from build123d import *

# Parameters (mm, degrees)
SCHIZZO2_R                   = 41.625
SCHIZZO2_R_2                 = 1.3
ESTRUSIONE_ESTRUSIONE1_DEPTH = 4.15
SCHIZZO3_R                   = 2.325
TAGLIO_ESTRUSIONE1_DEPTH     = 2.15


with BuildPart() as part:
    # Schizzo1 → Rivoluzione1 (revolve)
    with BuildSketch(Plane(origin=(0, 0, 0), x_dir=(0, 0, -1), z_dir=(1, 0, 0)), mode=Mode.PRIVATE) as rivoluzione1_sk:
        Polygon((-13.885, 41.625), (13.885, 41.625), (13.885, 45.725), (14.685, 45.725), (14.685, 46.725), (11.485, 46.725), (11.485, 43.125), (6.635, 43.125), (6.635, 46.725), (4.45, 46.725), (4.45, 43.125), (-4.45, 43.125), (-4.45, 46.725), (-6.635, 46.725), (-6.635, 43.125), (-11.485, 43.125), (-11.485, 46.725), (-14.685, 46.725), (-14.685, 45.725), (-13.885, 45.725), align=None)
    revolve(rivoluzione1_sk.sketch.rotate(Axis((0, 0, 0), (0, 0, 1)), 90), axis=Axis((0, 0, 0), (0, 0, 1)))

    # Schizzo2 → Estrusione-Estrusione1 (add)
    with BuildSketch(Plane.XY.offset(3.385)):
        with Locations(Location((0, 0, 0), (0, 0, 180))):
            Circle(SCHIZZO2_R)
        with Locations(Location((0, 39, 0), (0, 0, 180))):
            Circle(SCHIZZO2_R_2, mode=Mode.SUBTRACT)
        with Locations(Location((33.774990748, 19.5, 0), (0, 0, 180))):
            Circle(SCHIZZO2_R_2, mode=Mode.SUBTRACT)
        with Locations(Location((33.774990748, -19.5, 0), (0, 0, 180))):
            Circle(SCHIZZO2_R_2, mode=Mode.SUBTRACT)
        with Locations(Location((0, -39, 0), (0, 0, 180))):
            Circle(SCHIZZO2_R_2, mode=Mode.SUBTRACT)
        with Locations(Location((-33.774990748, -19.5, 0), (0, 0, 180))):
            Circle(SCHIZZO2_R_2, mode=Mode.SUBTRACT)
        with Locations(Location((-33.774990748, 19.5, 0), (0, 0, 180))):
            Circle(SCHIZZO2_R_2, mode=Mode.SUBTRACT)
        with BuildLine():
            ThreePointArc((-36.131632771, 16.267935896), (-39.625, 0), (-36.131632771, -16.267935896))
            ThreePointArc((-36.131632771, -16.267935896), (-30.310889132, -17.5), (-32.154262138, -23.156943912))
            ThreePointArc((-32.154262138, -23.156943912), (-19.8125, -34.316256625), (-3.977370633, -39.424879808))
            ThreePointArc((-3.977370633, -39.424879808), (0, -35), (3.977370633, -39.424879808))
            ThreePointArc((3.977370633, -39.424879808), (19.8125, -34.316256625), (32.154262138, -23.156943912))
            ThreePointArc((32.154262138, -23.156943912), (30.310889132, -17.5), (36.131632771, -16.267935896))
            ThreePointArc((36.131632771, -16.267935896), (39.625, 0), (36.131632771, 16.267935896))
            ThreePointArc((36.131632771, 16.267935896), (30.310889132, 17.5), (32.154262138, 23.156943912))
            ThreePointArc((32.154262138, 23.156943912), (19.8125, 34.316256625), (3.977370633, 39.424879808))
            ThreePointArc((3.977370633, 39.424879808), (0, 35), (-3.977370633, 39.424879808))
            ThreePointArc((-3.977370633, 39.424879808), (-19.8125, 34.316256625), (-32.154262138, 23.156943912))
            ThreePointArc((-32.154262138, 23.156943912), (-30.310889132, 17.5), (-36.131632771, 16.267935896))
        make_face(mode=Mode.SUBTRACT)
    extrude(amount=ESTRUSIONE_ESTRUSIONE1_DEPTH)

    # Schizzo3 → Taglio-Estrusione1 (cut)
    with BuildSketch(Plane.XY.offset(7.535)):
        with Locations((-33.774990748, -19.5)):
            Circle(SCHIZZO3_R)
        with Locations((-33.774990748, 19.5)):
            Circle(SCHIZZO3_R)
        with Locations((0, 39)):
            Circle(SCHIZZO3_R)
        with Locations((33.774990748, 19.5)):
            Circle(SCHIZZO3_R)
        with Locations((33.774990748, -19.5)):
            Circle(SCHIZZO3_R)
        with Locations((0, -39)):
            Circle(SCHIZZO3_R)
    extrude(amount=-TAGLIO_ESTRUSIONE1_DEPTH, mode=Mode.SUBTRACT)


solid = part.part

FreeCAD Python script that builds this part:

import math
import FreeCAD as App
import Part
import Sketcher
Q = App.Units.Quantity

doc = App.newDocument("Part")
body = doc.addObject("PartDesign::Body", "Body")

sketch1 = body.newObject("Sketcher::SketchObject", "Sketch")
sketch1.AttachmentSupport = (doc.getObject("YZ_Plane"), [""])
sketch1.MapMode = "FlatFace"
sketch1.addGeometry([
    Part.LineSegment(App.Vector(41.6, 13.9, 0), App.Vector(41.6, -13.9, 0)),
    Part.LineSegment(App.Vector(41.6, -13.9, 0), App.Vector(45.7, -13.9, 0)),
    Part.LineSegment(App.Vector(45.7, -13.9, 0), App.Vector(45.7, -14.7, 0)),
    Part.LineSegment(App.Vector(45.7, -14.7, 0), App.Vector(46.7, -14.7, 0)),
    Part.LineSegment(App.Vector(46.7, -14.7, 0), App.Vector(46.7, -11.5, 0)),
    Part.LineSegment(App.Vector(46.7, -11.5, 0), App.Vector(43.1, -11.5, 0)),
    Part.LineSegment(App.Vector(43.1, -11.5, 0), App.Vector(43.1, -6.6, 0)),
    Part.LineSegment(App.Vector(43.1, -6.6, 0), App.Vector(46.7, -6.6, 0)),
    Part.LineSegment(App.Vector(46.7, -6.6, 0), App.Vector(46.7, -4.5, 0)),
    Part.LineSegment(App.Vector(46.7, -4.5, 0), App.Vector(43.1, -4.5, 0)),
    Part.LineSegment(App.Vector(43.1, -4.5, 0), App.Vector(43.1, 4.5, 0)),
    Part.LineSegment(App.Vector(43.1, 4.5, 0), App.Vector(46.7, 4.5, 0)),
    Part.LineSegment(App.Vector(46.7, 4.5, 0), App.Vector(46.7, 6.6, 0)),
    Part.LineSegment(App.Vector(46.7, 6.6, 0), App.Vector(43.1, 6.6, 0)),
    Part.LineSegment(App.Vector(43.1, 6.6, 0), App.Vector(43.1, 11.5, 0)),
    Part.LineSegment(App.Vector(43.1, 11.5, 0), App.Vector(46.7, 11.5, 0)),
    Part.LineSegment(App.Vector(46.7, 11.5, 0), App.Vector(46.7, 14.7, 0)),
    Part.LineSegment(App.Vector(46.7, 14.7, 0), App.Vector(45.7, 14.7, 0)),
    Part.LineSegment(App.Vector(45.7, 14.7, 0), App.Vector(45.7, 13.9, 0)),
    Part.LineSegment(App.Vector(45.7, 13.9, 0), App.Vector(41.6, 13.9, 0)),
], False)
sketch1.addConstraint([
    Sketcher.Constraint("Coincident", 0, 2, 1, 1),
    Sketcher.Constraint("Coincident", 1, 2, 2, 1),
    Sketcher.Constraint("Coincident", 2, 2, 3, 1),
    Sketcher.Constraint("Coincident", 3, 2, 4, 1),
    Sketcher.Constraint("Coincident", 4, 2, 5, 1),
    Sketcher.Constraint("Coincident", 5, 2, 6, 1),
    Sketcher.Constraint("Coincident", 6, 2, 7, 1),
    Sketcher.Constraint("Coincident", 7, 2, 8, 1),
    Sketcher.Constraint("Coincident", 8, 2, 9, 1),
    Sketcher.Constraint("Coincident", 9, 2, 10, 1),
    Sketcher.Constraint("Coincident", 10, 2, 11, 1),
    Sketcher.Constraint("Coincident", 11, 2, 12, 1),
    Sketcher.Constraint("Coincident", 12, 2, 13, 1),
    Sketcher.Constraint("Coincident", 13, 2, 14, 1),
    Sketcher.Constraint("Coincident", 14, 2, 15, 1),
    Sketcher.Constraint("Coincident", 15, 2, 16, 1),
    Sketcher.Constraint("Coincident", 16, 2, 17, 1),
    Sketcher.Constraint("Coincident", 17, 2, 18, 1),
    Sketcher.Constraint("Coincident", 18, 2, 19, 1),
    Sketcher.Constraint("Coincident", 19, 2, 0, 1),
    Sketcher.Constraint("Vertical", 0),
    Sketcher.Constraint("Horizontal", 1),
    Sketcher.Constraint("Vertical", 2),
    Sketcher.Constraint("Horizontal", 3),
    Sketcher.Constraint("Vertical", 4),
    Sketcher.Constraint("Horizontal", 5),
    Sketcher.Constraint("Vertical", 6),
    Sketcher.Constraint("Horizontal", 7),
    Sketcher.Constraint("Vertical", 8),
    Sketcher.Constraint("Horizontal", 9),
    Sketcher.Constraint("Vertical", 10),
    Sketcher.Constraint("Horizontal", 11),
    Sketcher.Constraint("Vertical", 12),
    Sketcher.Constraint("Horizontal", 13),
    Sketcher.Constraint("Vertical", 14),
    Sketcher.Constraint("Horizontal", 15),
    Sketcher.Constraint("Vertical", 16),
    Sketcher.Constraint("Horizontal", 17),
    Sketcher.Constraint("Vertical", 18),
    Sketcher.Constraint("Horizontal", 19),
    Sketcher.Constraint("Symmetric", 8, 2, 11, 2, -1),
    Sketcher.Constraint("Symmetric", 6, 2, 13, 2, -1),
    Sketcher.Constraint("Symmetric", 4, 2, 15, 2, -1),
    Sketcher.Constraint("Symmetric", 2, 2, 17, 2, -1),
    Sketcher.Constraint("Vertical", 4, 2, 7, 2),
    Sketcher.Constraint("Vertical", 6, 2, 9, 2),
    Sketcher.Constraint("Equal", 2, 18),
    Sketcher.Constraint("DistanceX", 3, 1, 3, 2, Q("1 mm")),
    Sketcher.Constraint("DistanceX", 1, 1, 1, 2, Q("4.1 mm")),
    Sketcher.Constraint("DistanceX", 5, 2, 5, 1, Q("3.6 mm")),
    Sketcher.Constraint("DistanceY", 2, 2, 2, 1, Q("0.8 mm")),
    Sketcher.Constraint("DistanceY", 4, 1, 4, 2, Q("3.2 mm")),
    Sketcher.Constraint("DistanceY", 10, 1, 10, 2, Q("8.9 mm")),
    Sketcher.Constraint("DistanceY", 0, 2, 0, 1, Q("27.77 mm")),
    Sketcher.Constraint("DistanceY", 6, 1, 6, 2, Q("4.85 mm")),
    Sketcher.Constraint("DistanceX", -1, 1, 0, 2, Q("41.625 mm")),
])
revolution = body.newObject("PartDesign::Revolution", "Revolution")
revolution.Profile = sketch1
revolution.ReferenceAxis = (sketch1, ["V_Axis"])
revolution.Angle = 360

sketch2 = body.newObject("Sketcher::SketchObject", "Sketch001")
sketch2.AttachmentSupport = (doc.getObject("XY_Plane"), [""])
sketch2.MapMode = "FlatFace"
sketch2.AttachmentOffset = App.Placement(App.Vector(0, 0, 3.385), App.Rotation())
sketch2.addGeometry([
    Part.Circle(App.Vector(0, 0, 0), App.Vector(0, 0, 1), 41.6),
    Part.Circle(App.Vector(33.8, 19.5, 0), App.Vector(0, 0, 1), 1.3),
    Part.Circle(App.Vector(0, 39, 0), App.Vector(0, 0, 1), 1.3),
    Part.Circle(App.Vector(-33.8, 19.5, 0), App.Vector(0, 0, 1), 1.3),
    Part.Circle(App.Vector(33.8, -19.5, 0), App.Vector(0, 0, 1), 1.3),
    Part.ArcOfCircle(Part.Circle(App.Vector(0, 0, 0), App.Vector(0, 0, 1), 39.6), math.radians(156), math.radians(204)),
    Part.ArcOfCircle(Part.Circle(App.Vector(-33.8, 19.5, 0), App.Vector(0, 0, 1), 4), math.radians(-126), math.radians(66)),
    Part.ArcOfCircle(Part.Circle(App.Vector(0, 0, 0), App.Vector(0, 0, 1), 39.6), math.radians(96), math.radians(144)),
    Part.ArcOfCircle(Part.Circle(App.Vector(0, 39, 0), App.Vector(0, 0, 1), 4), math.radians(174), math.radians(366)),
    Part.ArcOfCircle(Part.Circle(App.Vector(0, 0, 0), App.Vector(0, 0, 1), 39.6), math.radians(36), math.radians(84)),
    Part.ArcOfCircle(Part.Circle(App.Vector(33.8, 19.5, 0), App.Vector(0, 0, 1), 4), math.radians(114), math.radians(306)),
    Part.ArcOfCircle(Part.Circle(App.Vector(0, 0, 0), App.Vector(0, 0, 1), 39.6), math.radians(-24), math.radians(24)),
    Part.ArcOfCircle(Part.Circle(App.Vector(33.8, -19.5, 0), App.Vector(0, 0, 1), 4), math.radians(54), math.radians(246)),
    Part.ArcOfCircle(Part.Circle(App.Vector(0, 0, 0), App.Vector(0, 0, 1), 39.6), math.radians(-84), math.radians(-36)),
    Part.ArcOfCircle(Part.Circle(App.Vector(0, -39, 0), App.Vector(0, 0, 1), 4), math.radians(-6), math.radians(186)),
    Part.ArcOfCircle(Part.Circle(App.Vector(0, 0, 0), App.Vector(0, 0, 1), 39.6), math.radians(-144), math.radians(-96)),
    Part.ArcOfCircle(Part.Circle(App.Vector(-33.8, -19.5, 0), App.Vector(0, 0, 1), 4), math.radians(-66), math.radians(126)),
    Part.Circle(App.Vector(-33.8, -19.5, 0), App.Vector(0, 0, 1), 1.3),
    Part.Circle(App.Vector(0, -39, 0), App.Vector(0, 0, 1), 1.3),
], False)
sketch2.addConstraint([
    Sketcher.Constraint("Coincident", 5, 1, 6, 1),
    Sketcher.Constraint("Coincident", 6, 2, 7, 2),
    Sketcher.Constraint("Coincident", 7, 1, 8, 1),
    Sketcher.Constraint("Coincident", 8, 2, 9, 2),
    Sketcher.Constraint("Coincident", 9, 1, 10, 1),
    Sketcher.Constraint("Coincident", 10, 2, 11, 2),
    Sketcher.Constraint("Coincident", 11, 1, 12, 1),
    Sketcher.Constraint("Coincident", 12, 2, 13, 2),
    Sketcher.Constraint("Coincident", 13, 1, 14, 1),
    Sketcher.Constraint("Coincident", 14, 2, 15, 2),
    Sketcher.Constraint("Coincident", 15, 1, 16, 1),
    Sketcher.Constraint("Coincident", 16, 2, 5, 2),
    Sketcher.Constraint("Coincident", 0, 3, -1, 1),
    Sketcher.Constraint("Coincident", 5, 3, -1, 1),
    Sketcher.Constraint("Coincident", 7, 3, -1, 1),
    Sketcher.Constraint("Coincident", 9, 3, -1, 1),
    Sketcher.Constraint("Coincident", 11, 3, -1, 1),
    Sketcher.Constraint("Coincident", 13, 3, -1, 1),
    Sketcher.Constraint("Coincident", 15, 3, -1, 1),
    Sketcher.Constraint("Coincident", 6, 3, 3, 3),
    Sketcher.Constraint("Coincident", 8, 3, 2, 3),
    Sketcher.Constraint("Coincident", 10, 3, 1, 3),
    Sketcher.Constraint("Coincident", 12, 3, 4, 3),
    Sketcher.Constraint("Coincident", 17, 3, 16, 3),
    Sketcher.Constraint("Coincident", 18, 3, 14, 3),
    Sketcher.Constraint("Equal", 1, 2),
    Sketcher.Constraint("Equal", 2, 3),
    Sketcher.Constraint("Equal", 3, 4),
    Sketcher.Constraint("Equal", 5, 7),
    Sketcher.Constraint("Equal", 6, 8),
    Sketcher.Constraint("Equal", 7, 9),
    Sketcher.Constraint("Equal", 8, 10),
    Sketcher.Constraint("Equal", 9, 11),
    Sketcher.Constraint("Equal", 10, 12),
    Sketcher.Constraint("Equal", 11, 13),
    Sketcher.Constraint("Equal", 12, 14),
    Sketcher.Constraint("Equal", 13, 15),
    Sketcher.Constraint("Equal", 14, 16),
    Sketcher.Constraint("Equal", 4, 17),
    Sketcher.Constraint("Equal", 17, 18),
    Sketcher.Constraint("Symmetric", 3, 3, 4, 3, -1, 1),
    Sketcher.Constraint("Symmetric", 2, 3, 14, 3, -1, 1),
    Sketcher.Constraint("Symmetric", 1, 3, 16, 3, -1, 1),
    Sketcher.Constraint("Symmetric", 1, 3, 3, 3, -2),
    Sketcher.Constraint("PointOnObject", 2, 3, -2),
    Sketcher.Constraint("Radius", 6, Q("4 mm")),
    Sketcher.Constraint("Diameter", 1, Q("2.6 mm")),
    Sketcher.Constraint("Diameter", 0, Q("83.25 mm")),
    Sketcher.Constraint("DistanceY", -1, 1, 2, 3, Q("39 mm")),
    Sketcher.Constraint("Radius", 5, Q("39.625 mm")),
    Sketcher.Constraint("DistanceY", 4, 3, 1, 3, Q("39 mm")),
    Sketcher.Constraint("DistanceX", -1, 1, 1, 3, Q("33.774991 mm")),
])
pad1 = body.newObject("PartDesign::Pad", "Pad")
pad1.Profile = sketch2
pad1.Length = 4.15

sketch3 = body.newObject("Sketcher::SketchObject", "Sketch002")
sketch3.AttachmentSupport = (doc.getObject("XY_Plane"), [""])
sketch3.MapMode = "FlatFace"
sketch3.AttachmentOffset = App.Placement(App.Vector(0, 0, 7.535), App.Rotation())
sketch3.addGeometry([
    Part.Circle(App.Vector(-33.8, -19.5, 0), App.Vector(0, 0, 1), 2.3),
    Part.Circle(App.Vector(-33.8, 19.5, 0), App.Vector(0, 0, 1), 2.3),
    Part.Circle(App.Vector(0, 39, 0), App.Vector(0, 0, 1), 2.3),
    Part.Circle(App.Vector(33.8, 19.5, 0), App.Vector(0, 0, 1), 2.3),
    Part.Circle(App.Vector(33.8, -19.5, 0), App.Vector(0, 0, 1), 2.3),
    Part.Circle(App.Vector(0, -39, 0), App.Vector(0, 0, 1), 2.3),
], False)
sketch3.addConstraint([
    Sketcher.Constraint("Equal", 0, 1),
    Sketcher.Constraint("Equal", 1, 2),
    Sketcher.Constraint("Equal", 2, 3),
    Sketcher.Constraint("Equal", 3, 4),
    Sketcher.Constraint("Equal", 4, 5),
    Sketcher.Constraint("Symmetric", 0, 3, 3, 3, -1, 1),
    Sketcher.Constraint("Symmetric", 1, 3, 4, 3, -1, 1),
    Sketcher.Constraint("Symmetric", 2, 3, 5, 3, -1, 1),
    Sketcher.Constraint("Symmetric", 1, 3, 3, 3, -2),
    Sketcher.Constraint("PointOnObject", 2, 3, -2),
    Sketcher.Constraint("Diameter", 0, Q("4.65 mm")),
    Sketcher.Constraint("DistanceY", -1, 1, 2, 3, Q("39 mm")),
    Sketcher.Constraint("DistanceY", 0, 3, 1, 3, Q("39 mm")),
    Sketcher.Constraint("DistanceX", 0, 3, -1, 1, Q("33.774991 mm")),
])
pocket1 = body.newObject("PartDesign::Pocket", "Pocket")
pocket1.Profile = sketch3
pocket1.Length = 2.15

doc.recompute()
